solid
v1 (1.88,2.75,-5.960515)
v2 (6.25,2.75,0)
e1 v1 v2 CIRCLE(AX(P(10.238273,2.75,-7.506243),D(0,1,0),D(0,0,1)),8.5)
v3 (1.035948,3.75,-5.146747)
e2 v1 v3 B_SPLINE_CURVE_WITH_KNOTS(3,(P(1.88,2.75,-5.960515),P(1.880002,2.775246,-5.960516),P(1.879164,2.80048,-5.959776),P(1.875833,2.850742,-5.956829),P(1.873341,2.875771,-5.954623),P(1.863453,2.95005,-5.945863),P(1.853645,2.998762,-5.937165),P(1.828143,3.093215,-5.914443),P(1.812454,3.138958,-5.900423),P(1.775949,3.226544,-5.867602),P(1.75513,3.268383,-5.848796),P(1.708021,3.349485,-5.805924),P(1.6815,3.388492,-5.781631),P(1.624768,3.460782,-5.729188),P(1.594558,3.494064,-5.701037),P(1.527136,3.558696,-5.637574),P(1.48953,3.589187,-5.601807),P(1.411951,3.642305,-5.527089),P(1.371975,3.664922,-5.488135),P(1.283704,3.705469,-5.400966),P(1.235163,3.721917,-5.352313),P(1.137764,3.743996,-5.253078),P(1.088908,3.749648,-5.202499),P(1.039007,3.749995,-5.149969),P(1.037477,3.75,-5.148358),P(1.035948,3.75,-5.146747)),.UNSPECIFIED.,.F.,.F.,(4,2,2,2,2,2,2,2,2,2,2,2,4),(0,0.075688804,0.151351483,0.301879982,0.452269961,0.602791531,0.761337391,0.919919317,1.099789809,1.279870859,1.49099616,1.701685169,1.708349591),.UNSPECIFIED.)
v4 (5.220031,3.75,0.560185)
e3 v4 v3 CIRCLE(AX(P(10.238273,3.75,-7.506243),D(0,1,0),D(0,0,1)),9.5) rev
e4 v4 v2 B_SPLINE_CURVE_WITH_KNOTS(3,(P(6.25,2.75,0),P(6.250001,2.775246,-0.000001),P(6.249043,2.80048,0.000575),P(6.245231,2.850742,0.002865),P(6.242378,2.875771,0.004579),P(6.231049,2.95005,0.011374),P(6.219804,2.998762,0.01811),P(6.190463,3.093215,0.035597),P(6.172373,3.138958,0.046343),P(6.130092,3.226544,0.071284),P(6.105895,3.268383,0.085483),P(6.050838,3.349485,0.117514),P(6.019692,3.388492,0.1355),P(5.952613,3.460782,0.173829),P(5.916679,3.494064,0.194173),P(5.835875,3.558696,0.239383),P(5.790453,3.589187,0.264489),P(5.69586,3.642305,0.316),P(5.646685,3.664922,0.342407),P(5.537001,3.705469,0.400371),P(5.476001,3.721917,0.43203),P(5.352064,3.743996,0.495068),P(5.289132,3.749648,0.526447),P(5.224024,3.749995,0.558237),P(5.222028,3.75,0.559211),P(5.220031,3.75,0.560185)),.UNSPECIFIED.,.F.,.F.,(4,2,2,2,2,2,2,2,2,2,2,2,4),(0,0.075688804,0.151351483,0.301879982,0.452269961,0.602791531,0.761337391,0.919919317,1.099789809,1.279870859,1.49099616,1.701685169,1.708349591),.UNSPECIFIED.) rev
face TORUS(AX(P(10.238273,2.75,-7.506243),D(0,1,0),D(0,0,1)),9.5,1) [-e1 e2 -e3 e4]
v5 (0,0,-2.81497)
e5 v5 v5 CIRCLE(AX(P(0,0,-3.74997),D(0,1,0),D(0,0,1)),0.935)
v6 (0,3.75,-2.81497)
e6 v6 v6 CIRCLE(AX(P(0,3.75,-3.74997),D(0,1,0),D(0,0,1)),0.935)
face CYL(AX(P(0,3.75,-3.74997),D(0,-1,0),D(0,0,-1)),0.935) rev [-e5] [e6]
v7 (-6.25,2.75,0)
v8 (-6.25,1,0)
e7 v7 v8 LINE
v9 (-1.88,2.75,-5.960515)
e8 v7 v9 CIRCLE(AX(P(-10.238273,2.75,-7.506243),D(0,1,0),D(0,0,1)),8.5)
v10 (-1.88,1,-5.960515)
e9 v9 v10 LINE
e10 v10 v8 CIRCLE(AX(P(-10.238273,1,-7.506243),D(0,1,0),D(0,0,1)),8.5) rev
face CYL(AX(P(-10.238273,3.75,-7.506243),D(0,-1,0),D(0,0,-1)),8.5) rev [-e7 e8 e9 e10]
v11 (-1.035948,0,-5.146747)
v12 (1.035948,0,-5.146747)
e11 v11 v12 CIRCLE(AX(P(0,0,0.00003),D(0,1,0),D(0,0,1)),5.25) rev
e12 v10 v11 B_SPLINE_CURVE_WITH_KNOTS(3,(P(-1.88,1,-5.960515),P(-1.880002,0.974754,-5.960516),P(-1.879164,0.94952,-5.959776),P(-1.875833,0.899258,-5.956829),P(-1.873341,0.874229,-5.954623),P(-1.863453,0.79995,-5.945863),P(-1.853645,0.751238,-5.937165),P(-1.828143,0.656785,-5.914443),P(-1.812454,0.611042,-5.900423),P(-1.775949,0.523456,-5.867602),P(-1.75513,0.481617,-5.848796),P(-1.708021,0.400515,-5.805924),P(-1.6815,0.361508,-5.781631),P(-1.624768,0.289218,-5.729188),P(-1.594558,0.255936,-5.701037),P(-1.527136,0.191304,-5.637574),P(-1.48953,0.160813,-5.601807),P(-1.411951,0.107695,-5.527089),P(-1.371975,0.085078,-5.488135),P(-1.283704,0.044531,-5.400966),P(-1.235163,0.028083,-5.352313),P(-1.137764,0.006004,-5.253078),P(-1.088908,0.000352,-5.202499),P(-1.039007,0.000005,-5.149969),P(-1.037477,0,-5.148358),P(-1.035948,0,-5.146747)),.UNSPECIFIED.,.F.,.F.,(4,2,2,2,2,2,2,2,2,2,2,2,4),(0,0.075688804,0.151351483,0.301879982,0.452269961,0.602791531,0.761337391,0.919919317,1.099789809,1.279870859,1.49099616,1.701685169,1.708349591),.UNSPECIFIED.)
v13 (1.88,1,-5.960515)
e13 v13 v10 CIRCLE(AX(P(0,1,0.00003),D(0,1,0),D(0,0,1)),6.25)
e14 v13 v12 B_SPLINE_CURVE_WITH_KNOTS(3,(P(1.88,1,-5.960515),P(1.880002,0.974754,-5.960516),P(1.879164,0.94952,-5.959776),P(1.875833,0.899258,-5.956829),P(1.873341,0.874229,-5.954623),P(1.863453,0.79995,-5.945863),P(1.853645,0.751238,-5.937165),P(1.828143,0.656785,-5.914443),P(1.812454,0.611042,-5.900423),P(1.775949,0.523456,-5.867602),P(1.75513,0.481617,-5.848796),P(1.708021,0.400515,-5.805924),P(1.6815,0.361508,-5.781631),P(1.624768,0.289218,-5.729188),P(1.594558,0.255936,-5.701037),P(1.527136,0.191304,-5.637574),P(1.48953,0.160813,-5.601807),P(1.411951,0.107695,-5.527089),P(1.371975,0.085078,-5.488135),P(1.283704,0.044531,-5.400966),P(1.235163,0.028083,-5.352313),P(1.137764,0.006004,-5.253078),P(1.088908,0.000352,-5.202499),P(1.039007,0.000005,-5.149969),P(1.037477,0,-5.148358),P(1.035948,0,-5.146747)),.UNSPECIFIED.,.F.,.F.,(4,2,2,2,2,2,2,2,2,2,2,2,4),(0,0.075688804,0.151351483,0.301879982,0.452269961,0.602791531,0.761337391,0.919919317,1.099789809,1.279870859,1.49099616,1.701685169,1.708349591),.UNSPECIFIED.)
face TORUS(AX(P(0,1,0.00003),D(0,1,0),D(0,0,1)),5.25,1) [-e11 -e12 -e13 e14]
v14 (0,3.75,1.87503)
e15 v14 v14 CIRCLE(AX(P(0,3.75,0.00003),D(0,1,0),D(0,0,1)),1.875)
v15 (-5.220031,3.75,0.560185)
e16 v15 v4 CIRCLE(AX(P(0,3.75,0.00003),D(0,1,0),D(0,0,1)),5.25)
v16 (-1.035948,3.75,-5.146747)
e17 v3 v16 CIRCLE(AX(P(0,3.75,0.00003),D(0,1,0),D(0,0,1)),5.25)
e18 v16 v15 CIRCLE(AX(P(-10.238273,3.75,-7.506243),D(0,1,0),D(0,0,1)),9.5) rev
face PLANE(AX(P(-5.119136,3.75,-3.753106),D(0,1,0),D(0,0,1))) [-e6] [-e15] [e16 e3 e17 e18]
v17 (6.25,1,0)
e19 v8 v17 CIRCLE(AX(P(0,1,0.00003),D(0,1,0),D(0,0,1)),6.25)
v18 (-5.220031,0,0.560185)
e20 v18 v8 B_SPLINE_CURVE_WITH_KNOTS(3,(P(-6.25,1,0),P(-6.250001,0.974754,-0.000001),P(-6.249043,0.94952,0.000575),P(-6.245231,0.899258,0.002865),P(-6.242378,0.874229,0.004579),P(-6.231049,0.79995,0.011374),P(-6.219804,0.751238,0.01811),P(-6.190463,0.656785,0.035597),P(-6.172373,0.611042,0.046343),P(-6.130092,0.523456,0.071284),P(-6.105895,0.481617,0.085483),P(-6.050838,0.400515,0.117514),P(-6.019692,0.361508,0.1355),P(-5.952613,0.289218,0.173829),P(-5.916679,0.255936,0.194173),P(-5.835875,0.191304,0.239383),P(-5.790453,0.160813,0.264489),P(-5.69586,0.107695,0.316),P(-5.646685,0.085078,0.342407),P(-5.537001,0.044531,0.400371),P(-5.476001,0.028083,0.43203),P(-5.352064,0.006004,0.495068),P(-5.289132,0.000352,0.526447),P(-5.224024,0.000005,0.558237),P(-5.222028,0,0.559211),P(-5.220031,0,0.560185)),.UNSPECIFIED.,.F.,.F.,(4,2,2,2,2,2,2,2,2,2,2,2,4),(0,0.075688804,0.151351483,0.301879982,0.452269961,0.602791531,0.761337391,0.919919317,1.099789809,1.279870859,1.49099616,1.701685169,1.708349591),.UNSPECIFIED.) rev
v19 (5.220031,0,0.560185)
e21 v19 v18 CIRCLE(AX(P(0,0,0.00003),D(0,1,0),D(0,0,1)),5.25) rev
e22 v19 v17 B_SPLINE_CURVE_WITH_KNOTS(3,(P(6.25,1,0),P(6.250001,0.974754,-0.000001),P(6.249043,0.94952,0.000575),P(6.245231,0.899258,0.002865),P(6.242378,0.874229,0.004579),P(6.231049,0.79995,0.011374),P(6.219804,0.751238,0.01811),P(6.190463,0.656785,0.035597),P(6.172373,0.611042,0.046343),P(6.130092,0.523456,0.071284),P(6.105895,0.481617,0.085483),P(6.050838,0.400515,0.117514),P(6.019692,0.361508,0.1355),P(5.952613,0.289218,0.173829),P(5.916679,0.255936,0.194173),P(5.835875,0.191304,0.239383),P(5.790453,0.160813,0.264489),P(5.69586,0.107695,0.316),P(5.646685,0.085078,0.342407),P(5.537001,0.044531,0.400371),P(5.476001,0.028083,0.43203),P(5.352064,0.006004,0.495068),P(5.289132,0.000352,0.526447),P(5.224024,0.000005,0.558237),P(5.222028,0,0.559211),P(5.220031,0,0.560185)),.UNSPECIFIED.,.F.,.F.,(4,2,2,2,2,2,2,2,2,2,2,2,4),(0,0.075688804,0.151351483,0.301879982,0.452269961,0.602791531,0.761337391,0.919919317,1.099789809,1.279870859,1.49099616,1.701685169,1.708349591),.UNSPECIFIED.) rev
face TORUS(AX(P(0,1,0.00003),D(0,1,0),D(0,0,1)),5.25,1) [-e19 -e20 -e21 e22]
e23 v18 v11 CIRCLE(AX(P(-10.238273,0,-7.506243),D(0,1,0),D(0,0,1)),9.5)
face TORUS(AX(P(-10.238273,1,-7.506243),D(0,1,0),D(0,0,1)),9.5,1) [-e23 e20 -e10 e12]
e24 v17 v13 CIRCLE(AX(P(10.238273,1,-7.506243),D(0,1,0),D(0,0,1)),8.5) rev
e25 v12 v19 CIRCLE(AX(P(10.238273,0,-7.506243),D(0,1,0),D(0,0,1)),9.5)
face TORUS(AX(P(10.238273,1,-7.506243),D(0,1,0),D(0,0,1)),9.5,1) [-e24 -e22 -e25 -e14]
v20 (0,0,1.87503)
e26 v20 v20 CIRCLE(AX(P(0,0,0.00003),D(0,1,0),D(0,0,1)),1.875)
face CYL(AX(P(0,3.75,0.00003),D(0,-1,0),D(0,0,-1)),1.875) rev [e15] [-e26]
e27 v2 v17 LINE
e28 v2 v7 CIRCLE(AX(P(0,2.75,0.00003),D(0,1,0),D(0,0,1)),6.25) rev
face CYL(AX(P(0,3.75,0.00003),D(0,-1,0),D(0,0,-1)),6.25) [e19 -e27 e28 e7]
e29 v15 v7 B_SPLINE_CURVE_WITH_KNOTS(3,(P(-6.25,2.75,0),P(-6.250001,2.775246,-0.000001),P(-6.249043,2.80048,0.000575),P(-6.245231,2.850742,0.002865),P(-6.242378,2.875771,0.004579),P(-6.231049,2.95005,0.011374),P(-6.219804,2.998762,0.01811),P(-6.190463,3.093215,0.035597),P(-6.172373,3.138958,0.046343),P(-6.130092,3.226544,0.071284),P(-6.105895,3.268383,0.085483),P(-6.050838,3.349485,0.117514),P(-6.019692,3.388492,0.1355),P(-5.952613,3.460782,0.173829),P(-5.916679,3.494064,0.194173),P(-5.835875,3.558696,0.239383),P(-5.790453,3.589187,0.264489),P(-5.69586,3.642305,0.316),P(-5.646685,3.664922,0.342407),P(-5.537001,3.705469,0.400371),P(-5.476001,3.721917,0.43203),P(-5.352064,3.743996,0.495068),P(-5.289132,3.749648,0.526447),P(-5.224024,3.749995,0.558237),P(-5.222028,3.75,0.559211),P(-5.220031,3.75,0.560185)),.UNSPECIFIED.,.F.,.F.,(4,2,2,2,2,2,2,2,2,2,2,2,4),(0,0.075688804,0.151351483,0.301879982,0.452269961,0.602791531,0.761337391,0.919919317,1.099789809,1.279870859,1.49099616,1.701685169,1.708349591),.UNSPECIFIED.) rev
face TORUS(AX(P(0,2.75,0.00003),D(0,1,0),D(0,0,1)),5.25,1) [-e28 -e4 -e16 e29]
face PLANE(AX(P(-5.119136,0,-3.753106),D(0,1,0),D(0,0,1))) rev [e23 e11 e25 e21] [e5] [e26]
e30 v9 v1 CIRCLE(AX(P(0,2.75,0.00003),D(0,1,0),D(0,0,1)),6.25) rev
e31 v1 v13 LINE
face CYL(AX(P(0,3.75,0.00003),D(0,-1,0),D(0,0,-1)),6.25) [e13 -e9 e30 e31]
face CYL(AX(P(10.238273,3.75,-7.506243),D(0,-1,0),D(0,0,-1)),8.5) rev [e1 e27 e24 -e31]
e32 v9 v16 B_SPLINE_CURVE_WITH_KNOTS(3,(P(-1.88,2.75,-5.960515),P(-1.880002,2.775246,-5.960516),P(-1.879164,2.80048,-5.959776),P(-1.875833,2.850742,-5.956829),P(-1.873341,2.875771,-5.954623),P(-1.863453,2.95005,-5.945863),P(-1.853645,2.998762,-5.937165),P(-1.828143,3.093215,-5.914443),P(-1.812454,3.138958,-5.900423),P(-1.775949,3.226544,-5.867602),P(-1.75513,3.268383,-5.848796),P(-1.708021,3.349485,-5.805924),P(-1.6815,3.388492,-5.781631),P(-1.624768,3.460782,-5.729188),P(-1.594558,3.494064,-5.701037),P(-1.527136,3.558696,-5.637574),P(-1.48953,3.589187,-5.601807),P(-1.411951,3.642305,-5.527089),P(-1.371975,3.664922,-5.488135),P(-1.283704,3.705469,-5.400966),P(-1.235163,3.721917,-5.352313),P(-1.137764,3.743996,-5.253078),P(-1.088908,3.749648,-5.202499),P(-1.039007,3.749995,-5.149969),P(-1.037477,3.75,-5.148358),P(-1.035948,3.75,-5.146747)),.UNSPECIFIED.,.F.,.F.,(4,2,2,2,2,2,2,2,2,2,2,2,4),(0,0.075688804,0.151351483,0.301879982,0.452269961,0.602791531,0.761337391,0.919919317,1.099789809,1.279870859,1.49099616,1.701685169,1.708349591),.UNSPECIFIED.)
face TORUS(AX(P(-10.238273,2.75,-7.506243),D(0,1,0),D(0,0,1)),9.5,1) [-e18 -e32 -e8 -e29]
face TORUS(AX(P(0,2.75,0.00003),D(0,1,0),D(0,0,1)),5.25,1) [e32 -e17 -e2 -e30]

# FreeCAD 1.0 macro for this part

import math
import FreeCAD as App
import Part
import Sketcher
Q = App.Units.Quantity


def edges_at(feature, points):
    """Names of the edges that pass closest to the given points."""
    edges = feature.Shape.Edges
    near = lambda p: min(range(len(edges)), key=lambda i: edges[i].distToShape(Part.Vertex(*p))[0])
    return sorted({f"Edge{near(p) + 1}" for p in points})

doc = App.newDocument("Part")
body = doc.addObject("PartDesign::Body", "Body")

sketch1 = body.newObject("Sketcher::SketchObject", "Sketch")
sketch1.AttachmentSupport = (doc.getObject("XZ_Plane"), [""])
sketch1.MapMode = "FlatFace"
sketch1.addGeometry([
    Part.ArcOfCircle(Part.Circle(App.Vector(0, 0.00003, 0), App.Vector(0, 0, 1), 6.25), math.radians(-0.000276), math.radians(180.000276)),
    Part.ArcOfCircle(Part.Circle(App.Vector(10.238273, -7.506243, 0), App.Vector(0, 0, 1), 8.5), math.radians(117.982936), math.radians(169.522447)),
    Part.ArcOfCircle(Part.Circle(App.Vector(0, 0.00003, 0), App.Vector(0, 0, 1), 6.25), math.radians(-107.505659), math.radians(-72.494341)),
    Part.ArcOfCircle(Part.Circle(App.Vector(-10.238273, -7.506243, 0), App.Vector(0, 0, 1), 8.5), math.radians(10.477553), math.radians(62.017064)),
    Part.Circle(App.Vector(0, 0.00003, 0), App.Vector(0, 0, 1), 1.875),
    Part.Circle(App.Vector(0, -3.74997, 0), App.Vector(0, 0, 1), 0.935),
], False)
sketch1.addConstraint([
    Sketcher.Constraint("Coincident", 0, 1, 1, 1),
    Sketcher.Constraint("Coincident", 1, 2, 2, 2),
    Sketcher.Constraint("Coincident", 2, 1, 3, 1),
    Sketcher.Constraint("Coincident", 3, 2, 0, 2),
    Sketcher.Constraint("Coincident", 2, 3, 0, 3),
    Sketcher.Constraint("Coincident", 4, 3, 0, 3),
    Sketcher.Constraint("Equal", 0, 2),
    Sketcher.Constraint("Equal", 1, 3),
    Sketcher.Constraint("Symmetric", 0, 1, 3, 2, -1, 1),
    Sketcher.Constraint("Symmetric", 1, 3, 3, 3, -2),
    Sketcher.Constraint("PointOnObject", 5, 3, -2),
    Sketcher.Constraint("Radius", 1, Q("8.5 mm")),
    Sketcher.Constraint("Diameter", 4, Q("3.75 mm")),
    Sketcher.Constraint("Diameter", 5, Q("1.87 mm")),
    Sketcher.Constraint("Radius", 0, Q("6.25 mm")),
    Sketcher.Constraint("DistanceX", -1, 1, 1, 2, Q("1.88 mm")),
    Sketcher.Constraint("DistanceY", 5, 3, 2, 3, Q("3.75 mm")),
    Sketcher.Constraint("DistanceY", 5, 3, -1, 1, Q("3.74997 mm")),
])
pad1 = body.newObject("PartDesign::Pad", "Pad")
pad1.Profile = sketch1
pad1.Length = 3.75
pad1.Reversed = True
doc.recompute()

fillet = body.newObject("PartDesign::Fillet", "Fillet")
fillet.Base = (pad1, edges_at(pad1, [
    (3.383, 3.75, -2.48),
    (0, 3.75, -6.25),
    (-3.383, 3.75, -2.48),
    (0, 3.75, 6.25),
]))
fillet.Radius = 1
doc.recompute()

fillet2 = body.newObject("PartDesign::Fillet", "Fillet001")
fillet2.Base = (fillet, edges_at(fillet, [
    (0, 0, -6.25),
    (3.383, 0, -2.48),
    (0, 0, 6.25),
    (-3.383, 0, -2.48),
]))
fillet2.Radius = 1

doc.recompute()
